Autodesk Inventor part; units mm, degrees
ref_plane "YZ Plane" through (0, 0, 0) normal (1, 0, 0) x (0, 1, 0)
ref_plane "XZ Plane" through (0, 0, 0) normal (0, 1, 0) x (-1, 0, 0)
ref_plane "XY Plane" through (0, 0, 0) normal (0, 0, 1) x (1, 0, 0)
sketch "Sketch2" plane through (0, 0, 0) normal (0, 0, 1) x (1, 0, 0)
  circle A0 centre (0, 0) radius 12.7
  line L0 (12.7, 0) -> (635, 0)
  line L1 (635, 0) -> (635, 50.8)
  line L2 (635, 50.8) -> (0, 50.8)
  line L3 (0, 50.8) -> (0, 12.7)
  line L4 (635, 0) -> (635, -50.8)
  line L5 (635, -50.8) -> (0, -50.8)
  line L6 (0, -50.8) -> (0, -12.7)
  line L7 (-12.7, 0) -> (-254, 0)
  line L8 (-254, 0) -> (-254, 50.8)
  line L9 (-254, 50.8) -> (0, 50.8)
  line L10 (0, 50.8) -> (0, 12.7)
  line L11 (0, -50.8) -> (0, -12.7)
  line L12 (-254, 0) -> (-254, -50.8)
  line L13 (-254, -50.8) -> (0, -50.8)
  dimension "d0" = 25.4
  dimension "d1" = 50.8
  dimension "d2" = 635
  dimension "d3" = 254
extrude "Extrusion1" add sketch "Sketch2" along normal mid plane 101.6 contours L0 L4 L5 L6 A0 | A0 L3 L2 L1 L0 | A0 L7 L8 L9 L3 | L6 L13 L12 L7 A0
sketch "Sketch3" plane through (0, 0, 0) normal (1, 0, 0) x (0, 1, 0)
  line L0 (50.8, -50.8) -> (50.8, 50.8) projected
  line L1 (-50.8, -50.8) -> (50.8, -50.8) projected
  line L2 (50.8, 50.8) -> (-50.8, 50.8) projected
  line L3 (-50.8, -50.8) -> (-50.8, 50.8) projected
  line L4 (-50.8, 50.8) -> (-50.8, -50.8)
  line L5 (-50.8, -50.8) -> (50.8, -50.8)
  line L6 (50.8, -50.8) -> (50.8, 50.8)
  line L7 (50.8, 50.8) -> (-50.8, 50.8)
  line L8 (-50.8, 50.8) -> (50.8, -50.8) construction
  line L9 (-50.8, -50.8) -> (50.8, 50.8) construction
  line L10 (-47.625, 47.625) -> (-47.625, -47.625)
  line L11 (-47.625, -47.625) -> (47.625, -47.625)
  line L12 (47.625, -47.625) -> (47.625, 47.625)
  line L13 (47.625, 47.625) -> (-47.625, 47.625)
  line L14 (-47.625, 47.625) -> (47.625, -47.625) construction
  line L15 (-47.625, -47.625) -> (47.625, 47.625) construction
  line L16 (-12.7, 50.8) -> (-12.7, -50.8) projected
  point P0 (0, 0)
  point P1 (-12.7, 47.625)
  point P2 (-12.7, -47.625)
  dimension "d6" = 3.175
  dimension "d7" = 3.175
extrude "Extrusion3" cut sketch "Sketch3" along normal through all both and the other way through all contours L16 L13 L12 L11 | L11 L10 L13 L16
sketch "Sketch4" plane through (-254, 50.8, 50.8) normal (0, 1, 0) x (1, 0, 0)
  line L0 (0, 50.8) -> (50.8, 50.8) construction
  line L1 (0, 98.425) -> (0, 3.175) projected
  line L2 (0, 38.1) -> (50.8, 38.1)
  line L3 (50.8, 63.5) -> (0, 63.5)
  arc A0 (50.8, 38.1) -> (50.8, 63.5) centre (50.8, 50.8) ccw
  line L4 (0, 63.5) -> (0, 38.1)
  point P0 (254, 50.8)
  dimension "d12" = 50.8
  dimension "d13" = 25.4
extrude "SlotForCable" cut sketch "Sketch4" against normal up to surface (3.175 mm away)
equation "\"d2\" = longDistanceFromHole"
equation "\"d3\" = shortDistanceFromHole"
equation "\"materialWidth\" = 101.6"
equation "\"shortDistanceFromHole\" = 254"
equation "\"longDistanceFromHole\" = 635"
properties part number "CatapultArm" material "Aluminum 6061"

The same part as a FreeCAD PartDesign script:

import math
import FreeCAD as App
import Part
import Sketcher
from FreeCAD import Vector
Q = App.Units.Quantity


def add_polygon(sketch, points):
    """Adds a closed chain of lines whose ends are joined by coincident constraints."""
    first, n = sketch.GeometryCount, len(points)
    for a, b in zip(points, points[1:] + points[:1]):
        sketch.addGeometry(Part.LineSegment(App.Vector(*a, 0), App.Vector(*b, 0)), False)
    for i in range(n):
        sketch.addConstraint(Sketcher.Constraint("Coincident", first + i, 2, first + (i + 1) % n, 1))

doc = App.newDocument("Part")
body = doc.addObject("PartDesign::Body", "Body")

sketch1 = body.newObject("Sketcher::SketchObject", "Sketch")
sketch1.AttachmentSupport = (doc.getObject("XY_Plane"), [""])
sketch1.MapMode = "FlatFace"
add_polygon(sketch1, [(635, -51), (635, 51), (-254, 51), (-254, -51)])
sketch1.addGeometry(Part.Circle(Vector(0, 0, 0), Vector(0, 0, 1), 13), False)
sketch1.addConstraint(Sketcher.Constraint("Vertical", 0))
sketch1.addConstraint(Sketcher.Constraint("Horizontal", 1))
sketch1.addConstraint(Sketcher.Constraint("Vertical", 2))
sketch1.addConstraint(Sketcher.Constraint("Horizontal", 3))
sketch1.addConstraint(Sketcher.Constraint("Coincident", 4, 3, -1, 1))
sketch1.addConstraint(Sketcher.Constraint("Diameter", 4, Q("1 in")))
sketch1.addConstraint(Sketcher.Constraint("DistanceX", -1, 1, 0, 2, Q("25 in")))
sketch1.addConstraint(Sketcher.Constraint("DistanceY", -1, 1, 0, 2, Q("2 in")))
sketch1.addConstraint(Sketcher.Constraint("DistanceX", 1, 2, -1, 1, Q("10 in")))
sketch1.addConstraint(Sketcher.Constraint("DistanceY", 2, 2, -1, 1, Q("2 in")))
pad1 = body.newObject("PartDesign::Pad", "Pad")
pad1.Profile = sketch1
pad1.Length = Q("4 in")
pad1.Midplane = True

sketch2 = body.newObject("Sketcher::SketchObject", "Sketch001")
sketch2.AttachmentSupport = (doc.getObject("YZ_Plane"), [""])
sketch2.MapMode = "FlatFace"
add_polygon(sketch2, [(48, 48), (-48, 48), (-48, -48), (48, -48)])
sketch2.addConstraint(Sketcher.Constraint("Horizontal", 0))
sketch2.addConstraint(Sketcher.Constraint("Vertical", 1))
sketch2.addConstraint(Sketcher.Constraint("Horizontal", 2))
sketch2.addConstraint(Sketcher.Constraint("Vertical", 3))
sketch2.addConstraint(Sketcher.Constraint("Symmetric", 0, 2, 2, 2, -1, 1))
sketch2.addConstraint(Sketcher.Constraint("Equal", 2, 1))
sketch2.addConstraint(Sketcher.Constraint("DistanceX", 0, 2, 0, 1, Q("3.75 in")))
pocket1 = body.newObject("PartDesign::Pocket", "Pocket")
pocket1.Profile = sketch2
pocket1.Type = "ThroughAll"
pocket1.Midplane = True

sketch3 = body.newObject("Sketcher::SketchObject", "Sketch002")
sketch3.AttachmentSupport = (doc.getObject("XZ_Plane"), [""])
sketch3.MapMode = "FlatFace"
sketch3.AttachmentOffset = App.Placement(Vector(0, 0, -2 * 25.4), App.Rotation())
sketch3.addGeometry(Part.LineSegment(Vector(-203, -13, 0), Vector(-254, -13, 0)), False)
sketch3.addGeometry(Part.LineSegment(Vector(-254, -13, 0), Vector(-254, 13, 0)), False)
sketch3.addGeometry(Part.LineSegment(Vector(-254, 13, 0), Vector(-203, 13, 0)), False)
sketch3.addGeometry(Part.ArcOfCircle(Part.Circle(Vector(-203, 0, 0), Vector(0, 0, 1), 13), math.radians(-90), math.radians(90)), False)
sketch3.addConstraint(Sketcher.Constraint("Coincident", 0, 2, 1, 1))
sketch3.addConstraint(Sketcher.Constraint("Coincident", 1, 2, 2, 1))
sketch3.addConstraint(Sketcher.Constraint("Tangent", 2, 2, 3, 2))
sketch3.addConstraint(Sketcher.Constraint("Tangent", 3, 1, 0, 1))
sketch3.addConstraint(Sketcher.Constraint("Horizontal", 0))
sketch3.addConstraint(Sketcher.Constraint("Vertical", 1))
sketch3.addConstraint(Sketcher.Constraint("Horizontal", 2))
sketch3.addConstraint(Sketcher.Constraint("PointOnObject", 3, 3, -1))
sketch3.addConstraint(Sketcher.Constraint("Radius", 3, Q("0.5 in")))
sketch3.addConstraint(Sketcher.Constraint("DistanceX", 0, 2, 0, 1, Q("2 in")))
sketch3.addConstraint(Sketcher.Constraint("DistanceX", 3, 3, -1, 1, Q("8 in")))
pocket2 = body.newObject("PartDesign::Pocket", "Pocket001")
pocket2.Profile = sketch3
pocket2.Length = Q("0.125 in")
pocket2.Reversed = True

doc.recompute()
